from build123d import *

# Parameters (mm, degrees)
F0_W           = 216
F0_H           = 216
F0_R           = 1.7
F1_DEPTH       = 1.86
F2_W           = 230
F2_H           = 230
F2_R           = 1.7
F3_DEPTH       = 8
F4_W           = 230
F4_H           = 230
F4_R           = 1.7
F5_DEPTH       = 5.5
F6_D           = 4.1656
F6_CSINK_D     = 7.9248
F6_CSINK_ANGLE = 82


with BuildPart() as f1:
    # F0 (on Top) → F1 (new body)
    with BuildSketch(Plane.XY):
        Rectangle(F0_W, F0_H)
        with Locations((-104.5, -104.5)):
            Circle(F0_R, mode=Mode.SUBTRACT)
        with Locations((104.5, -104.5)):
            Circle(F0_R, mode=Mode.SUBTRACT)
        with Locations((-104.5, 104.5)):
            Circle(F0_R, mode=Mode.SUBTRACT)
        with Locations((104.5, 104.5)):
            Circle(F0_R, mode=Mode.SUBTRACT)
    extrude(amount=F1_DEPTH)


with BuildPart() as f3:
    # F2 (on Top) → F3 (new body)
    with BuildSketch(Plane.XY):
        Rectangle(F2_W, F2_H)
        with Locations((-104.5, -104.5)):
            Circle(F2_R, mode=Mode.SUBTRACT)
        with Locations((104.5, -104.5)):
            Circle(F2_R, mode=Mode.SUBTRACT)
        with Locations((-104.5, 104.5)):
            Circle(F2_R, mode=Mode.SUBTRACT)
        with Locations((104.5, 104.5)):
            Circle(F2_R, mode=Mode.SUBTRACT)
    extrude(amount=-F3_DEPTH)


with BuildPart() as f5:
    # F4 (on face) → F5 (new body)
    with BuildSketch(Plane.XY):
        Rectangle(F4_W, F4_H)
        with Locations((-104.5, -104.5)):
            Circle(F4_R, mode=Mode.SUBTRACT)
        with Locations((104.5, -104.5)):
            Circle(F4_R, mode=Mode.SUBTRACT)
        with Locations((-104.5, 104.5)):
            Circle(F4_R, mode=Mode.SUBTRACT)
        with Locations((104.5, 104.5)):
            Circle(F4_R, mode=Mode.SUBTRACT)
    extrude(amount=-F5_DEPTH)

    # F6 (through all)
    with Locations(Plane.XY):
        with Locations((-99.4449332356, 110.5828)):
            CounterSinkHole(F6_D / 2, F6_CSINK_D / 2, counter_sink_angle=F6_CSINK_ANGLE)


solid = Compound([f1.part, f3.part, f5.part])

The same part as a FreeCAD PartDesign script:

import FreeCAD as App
import Part
import Sketcher
from FreeCAD import Vector
Q = App.Units.Quantity

doc = App.newDocument("Part")
body = doc.addObject("PartDesign::Body", "Body")

# Sketch on XY plane
sketch1 = doc.addObject("Sketcher::SketchObject", "Sketch")
body.addObject(sketch1)
sketch1.AttachmentSupport = (doc.XY_Plane, [""])
sketch1.MapMode = "FlatFace"
sketch1.addGeometry([
    Part.LineSegment(Vector(-108, 108, 0), Vector(-108, -108, 0)),  # 0
    Part.LineSegment(Vector(-108, -108, 0), Vector(108, -108, 0)),  # 1
    Part.LineSegment(Vector(108, -108, 0), Vector(108, 108, 0)),  # 2
    Part.LineSegment(Vector(108, 108, 0), Vector(-108, 108, 0)),  # 3
    Part.Circle(Vector(-104.5, -104.5, 0), Vector(0, 0, 1), 1.7),  # 4
    Part.Circle(Vector(104.5, -104.5, 0), Vector(0, 0, 1), 1.7),  # 5
    Part.Circle(Vector(-104.5, 104.5, 0), Vector(0, 0, 1), 1.7),  # 6
    Part.Circle(Vector(104.5, 104.5, 0), Vector(0, 0, 1), 1.7),  # 7
], False)
sketch1.addConstraint([
    Sketcher.Constraint("Coincident", 0, 2, 1, 1),
    Sketcher.Constraint("Coincident", 1, 2, 2, 1),
    Sketcher.Constraint("Coincident", 2, 2, 3, 1),
    Sketcher.Constraint("Coincident", 3, 2, 0, 1),
    Sketcher.Constraint("Vertical", 0),
    Sketcher.Constraint("Horizontal", 1),
    Sketcher.Constraint("Vertical", 2),
    Sketcher.Constraint("Horizontal", 3),
    Sketcher.Constraint("Equal", 4, 5),
    Sketcher.Constraint("Equal", 5, 6),
    Sketcher.Constraint("Equal", 6, 7),
    Sketcher.Constraint("Symmetric", 5, 3, 6, 3, -1, 1),
    Sketcher.Constraint("Symmetric", 4, 3, 7, 3, -1, 1),
    Sketcher.Constraint("Symmetric", 0, 2, 2, 2, -1, 1),
    Sketcher.Constraint("Symmetric", 4, 3, 5, 3, -2),
    Sketcher.Constraint("Equal", 3, 0),
    Sketcher.Constraint("Diameter", 4, Q("3.4 mm")),
    Sketcher.Constraint("DistanceX", 1, 1, 1, 2, Q("216 mm")),
    Sketcher.Constraint("DistanceX", 4, 3, 5, 3, Q("209 mm")),
    Sketcher.Constraint("DistanceY", 4, 3, 6, 3, Q("209 mm")),
])
pad1 = doc.addObject("PartDesign::Pad", "Pad")
body.addObject(pad1)
pad1.Profile = sketch1
pad1.Length = 1.86
body2 = doc.addObject("PartDesign::Body", "Body001")

# Sketch on XY plane
sketch2 = doc.addObject("Sketcher::SketchObject", "Sketch001")
body2.addObject(sketch2)
sketch2.AttachmentSupport = (doc.getObject("XY_Plane001"), [""])
sketch2.MapMode = "FlatFace"
sketch2.addGeometry([
    Part.LineSegment(Vector(-115, 115, 0), Vector(-115, -115, 0)),  # 0
    Part.LineSegment(Vector(-115, -115, 0), Vector(115, -115, 0)),  # 1
    Part.LineSegment(Vector(115, -115, 0), Vector(115, 115, 0)),  # 2
    Part.LineSegment(Vector(115, 115, 0), Vector(-115, 115, 0)),  # 3
    Part.Circle(Vector(-104.5, -104.5, 0), Vector(0, 0, 1), 1.7),  # 4
    Part.Circle(Vector(104.5, -104.5, 0), Vector(0, 0, 1), 1.7),  # 5
    Part.Circle(Vector(-104.5, 104.5, 0), Vector(0, 0, 1), 1.7),  # 6
    Part.Circle(Vector(104.5, 104.5, 0), Vector(0, 0, 1), 1.7),  # 7
], False)
sketch2.addConstraint([
    Sketcher.Constraint("Coincident", 0, 2, 1, 1),
    Sketcher.Constraint("Coincident", 1, 2, 2, 1),
    Sketcher.Constraint("Coincident", 2, 2, 3, 1),
    Sketcher.Constraint("Coincident", 3, 2, 0, 1),
    Sketcher.Constraint("Vertical", 0),
    Sketcher.Constraint("Horizontal", 1),
    Sketcher.Constraint("Vertical", 2),
    Sketcher.Constraint("Horizontal", 3),
    Sketcher.Constraint("Equal", 4, 5),
    Sketcher.Constraint("Equal", 5, 6),
    Sketcher.Constraint("Equal", 6, 7),
    Sketcher.Constraint("Symmetric", 5, 3, 6, 3, -1, 1),
    Sketcher.Constraint("Symmetric", 4, 3, 7, 3, -1, 1),
    Sketcher.Constraint("Symmetric", 0, 2, 2, 2, -1, 1),
    Sketcher.Constraint("Symmetric", 4, 3, 5, 3, -2),
    Sketcher.Constraint("Equal", 3, 0),
    Sketcher.Constraint("Diameter", 4, Q("3.4 mm")),
    Sketcher.Constraint("DistanceX", 1, 1, 1, 2, Q("230 mm")),
    Sketcher.Constraint("DistanceX", 4, 3, 5, 3, Q("209 mm")),
    Sketcher.Constraint("DistanceY", 4, 3, 6, 3, Q("209 mm")),
])
pad2 = doc.addObject("PartDesign::Pad", "Pad001")
body2.addObject(pad2)
pad2.Profile = sketch2
pad2.Length = 8
pad2.Reversed = True
body3 = doc.addObject("PartDesign::Body", "Body002")

# Sketch on XY plane
sketch3 = doc.addObject("Sketcher::SketchObject", "Sketch002")
body3.addObject(sketch3)
sketch3.AttachmentSupport = (doc.getObject("XY_Plane002"), [""])
sketch3.MapMode = "FlatFace"
sketch3.addGeometry([
    Part.LineSegment(Vector(-115, 115, 0), Vector(-115, -115, 0)),  # 0
    Part.LineSegment(Vector(-115, -115, 0), Vector(115, -115, 0)),  # 1
    Part.LineSegment(Vector(115, -115, 0), Vector(115, 115, 0)),  # 2
    Part.LineSegment(Vector(115, 115, 0), Vector(-115, 115, 0)),  # 3
    Part.Circle(Vector(-104.5, -104.5, 0), Vector(0, 0, 1), 1.7),  # 4
    Part.Circle(Vector(104.5, -104.5, 0), Vector(0, 0, 1), 1.7),  # 5
    Part.Circle(Vector(-104.5, 104.5, 0), Vector(0, 0, 1), 1.7),  # 6
    Part.Circle(Vector(104.5, 104.5, 0), Vector(0, 0, 1), 1.7),  # 7
], False)
sketch3.addConstraint([
    Sketcher.Constraint("Coincident", 0, 2, 1, 1),
    Sketcher.Constraint("Coincident", 1, 2, 2, 1),
    Sketcher.Constraint("Coincident", 2, 2, 3, 1),
    Sketcher.Constraint("Coincident", 3, 2, 0, 1),
    Sketcher.Constraint("Vertical", 0),
    Sketcher.Constraint("Horizontal", 1),
    Sketcher.Constraint("Vertical", 2),
    Sketcher.Constraint("Horizontal", 3),
    Sketcher.Constraint("Equal", 4, 5),
    Sketcher.Constraint("Equal", 5, 6),
    Sketcher.Constraint("Equal", 6, 7),
    Sketcher.Constraint("Symmetric", 5, 3, 6, 3, -1, 1),
    Sketcher.Constraint("Symmetric", 4, 3, 7, 3, -1, 1),
    Sketcher.Constraint("Symmetric", 0, 2, 2, 2, -1, 1),
    Sketcher.Constraint("Symmetric", 4, 3, 5, 3, -2),
    Sketcher.Constraint("Equal", 3, 0),
    Sketcher.Constraint("Diameter", 4, Q("3.4 mm")),
    Sketcher.Constraint("DistanceX", 1, 1, 1, 2, Q("230 mm")),
    Sketcher.Constraint("DistanceX", 4, 3, 5, 3, Q("209 mm")),
    Sketcher.Constraint("DistanceY", 4, 3, 6, 3, Q("209 mm")),
])
pad3 = doc.addObject("PartDesign::Pad", "Pad002")
body3.addObject(pad3)
pad3.Profile = sketch3
pad3.Length = 5.5
pad3.Reversed = True

# Sketch on XY plane
sketch4 = doc.addObject("Sketcher::SketchObject", "Sketch003")
body3.addObject(sketch4)
sketch4.AttachmentSupport = (doc.getObject("XY_Plane002"), [""])
sketch4.MapMode = "FlatFace"
sketch4.addGeometry(Part.Circle(Vector(-99.4, 110.6, 0), Vector(0, 0, 1), 2.1), False)
sketch4.addConstraint([
    Sketcher.Constraint("Diameter", 0, Q("4.1656 mm")),
    Sketcher.Constraint("DistanceY", -1, 1, 0, 3, Q("110.5828 mm")),
    Sketcher.Constraint("DistanceX", 0, 3, -1, 1, Q("99.444933 mm")),
])
doc.recompute()
hole = doc.addObject("PartDesign::Hole", "Hole")
body3.addObject(hole)
hole.Profile = sketch4
hole.ThreadType = "None"
hole.Diameter = 4.1656
hole.DepthType = "ThroughAll"
hole.HoleCutType = "Countersink"
hole.HoleCutDiameter = 7.9248
hole.HoleCutCountersinkAngle = 82

doc.recompute()
